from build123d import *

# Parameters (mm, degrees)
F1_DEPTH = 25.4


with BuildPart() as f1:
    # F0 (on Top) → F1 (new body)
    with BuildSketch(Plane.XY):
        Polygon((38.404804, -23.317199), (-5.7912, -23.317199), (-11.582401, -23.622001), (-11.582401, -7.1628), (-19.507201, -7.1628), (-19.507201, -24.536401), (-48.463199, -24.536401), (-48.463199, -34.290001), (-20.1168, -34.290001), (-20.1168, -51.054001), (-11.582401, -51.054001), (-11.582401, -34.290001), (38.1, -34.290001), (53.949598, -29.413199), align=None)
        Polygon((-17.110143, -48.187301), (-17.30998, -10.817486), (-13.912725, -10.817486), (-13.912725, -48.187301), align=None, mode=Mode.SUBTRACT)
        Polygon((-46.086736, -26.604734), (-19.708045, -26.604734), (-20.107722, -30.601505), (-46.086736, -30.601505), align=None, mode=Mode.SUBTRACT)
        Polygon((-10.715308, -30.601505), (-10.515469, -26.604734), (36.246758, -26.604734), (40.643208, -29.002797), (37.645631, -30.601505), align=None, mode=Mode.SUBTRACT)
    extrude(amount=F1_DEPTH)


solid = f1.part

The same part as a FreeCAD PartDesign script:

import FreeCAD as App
import Part
import Sketcher
Q = App.Units.Quantity

doc = App.newDocument("Part")
body = doc.addObject("PartDesign::Body", "Body")

sketch1 = doc.addObject("Sketcher::SketchObject", "Sketch")
body.addObject(sketch1)
sketch1.AttachmentSupport = (doc.XY_Plane, [""])
sketch1.MapMode = "FlatFace"
sketch1.addGeometry(Part.LineSegment(App.Vector(38.404804, -23.317199, 0), App.Vector(-5.7912, -23.317199, 0)), False)
sketch1.addGeometry(Part.LineSegment(App.Vector(-5.7912, -23.317199, 0), App.Vector(-11.582401, -23.622001, 0)), False)
sketch1.addGeometry(Part.LineSegment(App.Vector(-11.582401, -23.622001, 0), App.Vector(-11.582401, -7.1628, 0)), False)
sketch1.addGeometry(Part.LineSegment(App.Vector(-11.582401, -7.1628, 0), App.Vector(-19.507201, -7.1628, 0)), False)
sketch1.addGeometry(Part.LineSegment(App.Vector(-19.507201, -7.1628, 0), App.Vector(-19.507201, -24.536401, 0)), False)
sketch1.addGeometry(Part.LineSegment(App.Vector(-19.507201, -24.536401, 0), App.Vector(-48.463199, -24.536401, 0)), False)
sketch1.addGeometry(Part.LineSegment(App.Vector(-48.463199, -24.536401, 0), App.Vector(-48.463199, -34.290001, 0)), False)
sketch1.addGeometry(Part.LineSegment(App.Vector(-48.463199, -34.290001, 0), App.Vector(-20.1168, -34.290001, 0)), False)
sketch1.addGeometry(Part.LineSegment(App.Vector(-20.1168, -34.290001, 0), App.Vector(-20.1168, -51.054001, 0)), False)
sketch1.addGeometry(Part.LineSegment(App.Vector(-20.1168, -51.054001, 0), App.Vector(-11.582401, -51.054001, 0)), False)
sketch1.addGeometry(Part.LineSegment(App.Vector(-11.582401, -51.054001, 0), App.Vector(-11.582401, -34.290001, 0)), False)
sketch1.addGeometry(Part.LineSegment(App.Vector(-11.582401, -34.290001, 0), App.Vector(38.1, -34.290001, 0)), False)
sketch1.addGeometry(Part.LineSegment(App.Vector(38.1, -34.290001, 0), App.Vector(53.949598, -29.413199, 0)), False)
sketch1.addGeometry(Part.LineSegment(App.Vector(53.949598, -29.413199, 0), App.Vector(38.404804, -23.317199, 0)), False)
sketch1.addGeometry(Part.LineSegment(App.Vector(-13.912725, -48.187301, 0), App.Vector(-17.110143, -48.187301, 0)), False)
sketch1.addGeometry(Part.LineSegment(App.Vector(-17.110143, -48.187301, 0), App.Vector(-17.30998, -10.817486, 0)), False)
sketch1.addGeometry(Part.LineSegment(App.Vector(-17.30998, -10.817486, 0), App.Vector(-13.912725, -10.817486, 0)), False)
sketch1.addGeometry(Part.LineSegment(App.Vector(-13.912725, -10.817486, 0), App.Vector(-13.912725, -48.187301, 0)), False)
sketch1.addGeometry(Part.LineSegment(App.Vector(-46.086736, -30.601505, 0), App.Vector(-46.086736, -26.604734, 0)), False)
sketch1.addGeometry(Part.LineSegment(App.Vector(-46.086736, -26.604734, 0), App.Vector(-19.708045, -26.604734, 0)), False)
sketch1.addGeometry(Part.LineSegment(App.Vector(-19.708045, -26.604734, 0), App.Vector(-20.107722, -30.601505, 0)), False)
sketch1.addGeometry(Part.LineSegment(App.Vector(-20.107722, -30.601505, 0), App.Vector(-46.086736, -30.601505, 0)), False)
sketch1.addGeometry(Part.LineSegment(App.Vector(37.645631, -30.601505, 0), App.Vector(-10.715308, -30.601505, 0)), False)
sketch1.addGeometry(Part.LineSegment(App.Vector(-10.715308, -30.601505, 0), App.Vector(-10.515469, -26.604734, 0)), False)
sketch1.addGeometry(Part.LineSegment(App.Vector(-10.515469, -26.604734, 0), App.Vector(36.246758, -26.604734, 0)), False)
sketch1.addGeometry(Part.LineSegment(App.Vector(36.246758, -26.604734, 0), App.Vector(40.643208, -29.002797, 0)), False)
sketch1.addGeometry(Part.LineSegment(App.Vector(40.643208, -29.002797, 0), App.Vector(37.645631, -30.601505, 0)), False)
sketch1.addConstraint(Sketcher.Constraint("Coincident", 0, 2, 1, 1))
sketch1.addConstraint(Sketcher.Constraint("Coincident", 1, 2, 2, 1))
sketch1.addConstraint(Sketcher.Constraint("Coincident", 2, 2, 3, 1))
sketch1.addConstraint(Sketcher.Constraint("Coincident", 3, 2, 4, 1))
sketch1.addConstraint(Sketcher.Constraint("Coincident", 4, 2, 5, 1))
sketch1.addConstraint(Sketcher.Constraint("Coincident", 5, 2, 6, 1))
sketch1.addConstraint(Sketcher.Constraint("Coincident", 6, 2, 7, 1))
sketch1.addConstraint(Sketcher.Constraint("Coincident", 7, 2, 8, 1))
sketch1.addConstraint(Sketcher.Constraint("Coincident", 8, 2, 9, 1))
sketch1.addConstraint(Sketcher.Constraint("Coincident", 9, 2, 10, 1))
sketch1.addConstraint(Sketcher.Constraint("Coincident", 10, 2, 11, 1))
sketch1.addConstraint(Sketcher.Constraint("Coincident", 11, 2, 12, 1))
sketch1.addConstraint(Sketcher.Constraint("Coincident", 12, 2, 13, 1))
sketch1.addConstraint(Sketcher.Constraint("Coincident", 13, 2, 0, 1))
sketch1.addConstraint(Sketcher.Constraint("Coincident", 14, 2, 15, 1))
sketch1.addConstraint(Sketcher.Constraint("Coincident", 15, 2, 16, 1))
sketch1.addConstraint(Sketcher.Constraint("Coincident", 16, 2, 17, 1))
sketch1.addConstraint(Sketcher.Constraint("Coincident", 17, 2, 14, 1))
sketch1.addConstraint(Sketcher.Constraint("Coincident", 18, 2, 19, 1))
sketch1.addConstraint(Sketcher.Constraint("Coincident", 19, 2, 20, 1))
sketch1.addConstraint(Sketcher.Constraint("Coincident", 20, 2, 21, 1))
sketch1.addConstraint(Sketcher.Constraint("Coincident", 21, 2, 18, 1))
sketch1.addConstraint(Sketcher.Constraint("Coincident", 22, 2, 23, 1))
sketch1.addConstraint(Sketcher.Constraint("Coincident", 23, 2, 24, 1))
sketch1.addConstraint(Sketcher.Constraint("Coincident", 24, 2, 25, 1))
sketch1.addConstraint(Sketcher.Constraint("Coincident", 25, 2, 26, 1))
sketch1.addConstraint(Sketcher.Constraint("Coincident", 26, 2, 22, 1))
sketch1.addConstraint(Sketcher.Constraint("Horizontal", 0))
sketch1.addConstraint(Sketcher.Constraint("Vertical", 2))
sketch1.addConstraint(Sketcher.Constraint("Horizontal", 3))
sketch1.addConstraint(Sketcher.Constraint("Vertical", 4))
sketch1.addConstraint(Sketcher.Constraint("Horizontal", 5))
sketch1.addConstraint(Sketcher.Constraint("Vertical", 6))
sketch1.addConstraint(Sketcher.Constraint("Horizontal", 7))
sketch1.addConstraint(Sketcher.Constraint("Vertical", 8))
sketch1.addConstraint(Sketcher.Constraint("Horizontal", 9))
sketch1.addConstraint(Sketcher.Constraint("Vertical", 10))
sketch1.addConstraint(Sketcher.Constraint("Horizontal", 11))
sketch1.addConstraint(Sketcher.Constraint("Horizontal", 14))
sketch1.addConstraint(Sketcher.Constraint("Horizontal", 16))
sketch1.addConstraint(Sketcher.Constraint("Vertical", 17))
sketch1.addConstraint(Sketcher.Constraint("Vertical", 18))
sketch1.addConstraint(Sketcher.Constraint("Horizontal", 19))
sketch1.addConstraint(Sketcher.Constraint("Horizontal", 21))
sketch1.addConstraint(Sketcher.Constraint("Horizontal", 22))
sketch1.addConstraint(Sketcher.Constraint("Horizontal", 24))
sketch1.addConstraint(Sketcher.Constraint("Horizontal", 7, 2, 10, 2))
sketch1.addConstraint(Sketcher.Constraint("Horizontal", 21, 2, 22, 2))
sketch1.addConstraint(Sketcher.Constraint("Horizontal", 19, 2, 23, 2))
sketch1.addConstraint(Sketcher.Constraint("Vertical", 2, 2, 9, 2))
sketch1.addConstraint(Sketcher.Constraint("DistanceX", 0, 2, 0, 1, Q("1.7400002 in")))
sketch1.addConstraint(Sketcher.Constraint("DistanceX", 5, 2, 5, 1, Q("1.1399999 in")))
sketch1.addConstraint(Sketcher.Constraint("DistanceY", 8, 2, 8, 1, Q("0.66 in")))
sketch1.addConstraint(Sketcher.Constraint("DistanceX", -1, 1, 11, 2, Q("1.5 in")))
sketch1.addConstraint(Sketcher.Constraint("DistanceX", 3, 2, 3, 1, Q("0.312 in")))
sketch1.addConstraint(Sketcher.Constraint("DistanceX", 7, 1, 7, 2, Q("1.116 in")))
sketch1.addConstraint(Sketcher.Constraint("DistanceX", 11, 1, 11, 2, Q("1.956 in")))
sketch1.addConstraint(Sketcher.Constraint("DistanceY", 2, 1, 2, 2, Q("0.648 in")))
sketch1.addConstraint(Sketcher.Constraint("DistanceY", 4, 2, 4, 1, Q("0.684 in")))
sketch1.addConstraint(Sketcher.Constraint("DistanceY", 6, 2, 6, 1, Q("0.384 in")))
sketch1.addConstraint(Sketcher.Constraint("DistanceY", 1, 2, -1, 1, Q("0.93 in")))
sketch1.addConstraint(Sketcher.Constraint("DistanceX", 3, 2, 0, 2, Q("0.54 in")))
sketch1.addConstraint(Sketcher.Constraint("DistanceY", 12, 2, 0, 2, Q("0.24 in")))
sketch1.addConstraint(Sketcher.Constraint("DistanceX", 10, 2, 12, 2, Q("2.58 in")))
sketch1.addConstraint(Sketcher.Constraint("DistanceY", 0, 2, -1, 1, Q("0.918 in")))
sketch1.addConstraint(Sketcher.Constraint("DistanceX", 14, 2, 14, 1, Q("3.197418 mm")))
sketch1.addConstraint(Sketcher.Constraint("DistanceX", 19, 1, 19, 2, Q("26.378691 mm")))
sketch1.addConstraint(Sketcher.Constraint("DistanceX", 22, 2, 22, 1, Q("48.360939 mm")))
sketch1.addConstraint(Sketcher.Constraint("DistanceY", 18, 1, 18, 2, Q("3.996771 mm")))
sketch1.addConstraint(Sketcher.Constraint("DistanceY", 14, 2, -1, 1, Q("48.187301 mm")))
sketch1.addConstraint(Sketcher.Constraint("DistanceY", 25, 2, 13, 2, Q("5.685598 mm")))
sketch1.addConstraint(Sketcher.Constraint("Distance", 15, Q("37.370349 mm")))
sketch1.addConstraint(Sketcher.Constraint("Distance", 25, Q("5.007942 mm")))
sketch1.addConstraint(Sketcher.Constraint("DistanceX", 16, 1, 16, 2, Q("3.397255 mm")))
sketch1.addConstraint(Sketcher.Constraint("DistanceX", 21, 2, 21, 1, Q("25.979014 mm")))
sketch1.addConstraint(Sketcher.Constraint("DistanceX", 24, 1, 24, 2, Q("46.762227 mm")))
sketch1.addConstraint(Sketcher.Constraint("DistanceX", 15, 2, -1, 1, Q("17.30998 mm")))
sketch1.addConstraint(Sketcher.Constraint("DistanceX", 20, 2, -1, 1, Q("20.107722 mm")))
sketch1.addConstraint(Sketcher.Constraint("DistanceX", 23, 2, -1, 1, Q("10.515469 mm")))
sketch1.addConstraint(Sketcher.Constraint("DistanceX", -1, 1, 26, 2, Q("37.645631 mm")))
sketch1.addConstraint(Sketcher.Constraint("DistanceX", 24, 2, 25, 2, Q("4.39645 mm")))
pad1 = doc.addObject("PartDesign::Pad", "Pad")
body.addObject(pad1)
pad1.Profile = sketch1
pad1.Length = Q("1 in")

doc.recompute()
